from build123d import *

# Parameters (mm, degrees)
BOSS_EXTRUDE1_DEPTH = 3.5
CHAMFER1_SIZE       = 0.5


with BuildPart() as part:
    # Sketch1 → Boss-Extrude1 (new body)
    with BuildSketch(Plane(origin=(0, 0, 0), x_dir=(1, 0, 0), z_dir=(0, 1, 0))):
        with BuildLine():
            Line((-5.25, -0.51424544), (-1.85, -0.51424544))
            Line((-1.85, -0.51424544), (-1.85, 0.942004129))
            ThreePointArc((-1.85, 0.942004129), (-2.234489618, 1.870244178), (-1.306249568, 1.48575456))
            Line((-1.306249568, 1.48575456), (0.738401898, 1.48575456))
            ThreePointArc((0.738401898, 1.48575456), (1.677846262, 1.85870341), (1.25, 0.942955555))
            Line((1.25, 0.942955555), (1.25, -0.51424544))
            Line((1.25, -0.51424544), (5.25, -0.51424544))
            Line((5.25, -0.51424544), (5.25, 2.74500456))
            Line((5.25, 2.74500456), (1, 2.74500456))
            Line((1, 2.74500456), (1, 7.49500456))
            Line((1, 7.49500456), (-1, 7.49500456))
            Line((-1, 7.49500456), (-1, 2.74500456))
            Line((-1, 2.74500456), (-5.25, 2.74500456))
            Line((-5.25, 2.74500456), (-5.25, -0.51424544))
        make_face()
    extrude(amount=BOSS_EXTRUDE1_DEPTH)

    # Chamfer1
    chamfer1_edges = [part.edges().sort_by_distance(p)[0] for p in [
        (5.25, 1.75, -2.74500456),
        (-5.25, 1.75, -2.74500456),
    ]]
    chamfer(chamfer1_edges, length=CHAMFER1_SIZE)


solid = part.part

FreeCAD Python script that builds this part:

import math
import FreeCAD as App
import Part
import Sketcher


def edges_at(feature, points):
    """Names of the edges that pass closest to the given points."""
    edges = feature.Shape.Edges
    near = lambda p: min(range(len(edges)), key=lambda i: edges[i].distToShape(Part.Vertex(*p))[0])
    return sorted({f"Edge{near(p) + 1}" for p in points})

doc = App.newDocument("Part")
body = doc.addObject("PartDesign::Body", "Body")

# Sketch on XZ plane
sketch1 = body.newObject("Sketcher::SketchObject", "Sketch")
sketch1.AttachmentSupport = (doc.getObject("XZ_Plane"), [""])
sketch1.MapMode = "FlatFace"
sketch1.addGeometry(Part.LineSegment(App.Vector(-5.2, 0.5, 0), App.Vector(-1.9, 0.5, 0)), False)
sketch1.addGeometry(Part.LineSegment(App.Vector(-1.9, 0.5, 0), App.Vector(-1.9, -0.9, 0)), False)
sketch1.addGeometry(Part.ArcOfCircle(Part.Circle(App.Vector(-1.9, -1.5, 0), App.Vector(0, 0, 1), 0.5), math.radians(90), math.radians(360)), False)
sketch1.addGeometry(Part.LineSegment(App.Vector(-1.3, -1.5, 0), App.Vector(0.7, -1.5, 0)), False)
sketch1.addGeometry(Part.ArcOfCircle(Part.Circle(App.Vector(1.3, -1.5, 0), App.Vector(0, 0, 1), 0.5), math.radians(180), math.radians(453)), False)
sketch1.addGeometry(Part.LineSegment(App.Vector(1.2, -0.9, 0), App.Vector(1.2, 0.5, 0)), False)
sketch1.addGeometry(Part.LineSegment(App.Vector(1.2, 0.5, 0), App.Vector(5.2, 0.5, 0)), False)
sketch1.addGeometry(Part.LineSegment(App.Vector(5.2, 0.5, 0), App.Vector(5.2, -2.7, 0)), False)
sketch1.addGeometry(Part.LineSegment(App.Vector(5.2, -2.7, 0), App.Vector(1, -2.7, 0)), False)
sketch1.addGeometry(Part.LineSegment(App.Vector(1, -2.7, 0), App.Vector(1, -7.5, 0)), False)
sketch1.addGeometry(Part.LineSegment(App.Vector(1, -7.5, 0), App.Vector(-1, -7.5, 0)), False)
sketch1.addGeometry(Part.LineSegment(App.Vector(-1, -7.5, 0), App.Vector(-1, -2.7, 0)), False)
sketch1.addGeometry(Part.LineSegment(App.Vector(-1, -2.7, 0), App.Vector(-5.2, -2.7, 0)), False)
sketch1.addGeometry(Part.LineSegment(App.Vector(-5.2, -2.7, 0), App.Vector(-5.2, 0.5, 0)), False)
sketch1.addConstraint(Sketcher.Constraint("Coincident", 0, 2, 1, 1))
sketch1.addConstraint(Sketcher.Constraint("Coincident", 1, 2, 2, 1))
sketch1.addConstraint(Sketcher.Constraint("Coincident", 2, 2, 3, 1))
sketch1.addConstraint(Sketcher.Constraint("Coincident", 3, 2, 4, 1))
sketch1.addConstraint(Sketcher.Constraint("Coincident", 4, 2, 5, 1))
sketch1.addConstraint(Sketcher.Constraint("Coincident", 5, 2, 6, 1))
sketch1.addConstraint(Sketcher.Constraint("Coincident", 6, 2, 7, 1))
sketch1.addConstraint(Sketcher.Constraint("Coincident", 7, 2, 8, 1))
sketch1.addConstraint(Sketcher.Constraint("Coincident", 8, 2, 9, 1))
sketch1.addConstraint(Sketcher.Constraint("Coincident", 9, 2, 10, 1))
sketch1.addConstraint(Sketcher.Constraint("Coincident", 10, 2, 11, 1))
sketch1.addConstraint(Sketcher.Constraint("Coincident", 11, 2, 12, 1))
sketch1.addConstraint(Sketcher.Constraint("Coincident", 12, 2, 13, 1))
sketch1.addConstraint(Sketcher.Constraint("Coincident", 13, 2, 0, 1))
sketch1.addConstraint(Sketcher.Constraint("Horizontal", 0))
sketch1.addConstraint(Sketcher.Constraint("Vertical", 1))
sketch1.addConstraint(Sketcher.Constraint("Horizontal", 3))
sketch1.addConstraint(Sketcher.Constraint("Vertical", 5))
sketch1.addConstraint(Sketcher.Constraint("Horizontal", 6))
sketch1.addConstraint(Sketcher.Constraint("Vertical", 7))
sketch1.addConstraint(Sketcher.Constraint("Horizontal", 8))
sketch1.addConstraint(Sketcher.Constraint("Vertical", 9))
sketch1.addConstraint(Sketcher.Constraint("Horizontal", 10))
sketch1.addConstraint(Sketcher.Constraint("Vertical", 11))
sketch1.addConstraint(Sketcher.Constraint("Horizontal", 12))
sketch1.addConstraint(Sketcher.Constraint("Vertical", 13))
sketch1.addConstraint(Sketcher.Constraint("Equal", 2, 4))
sketch1.addConstraint(Sketcher.Constraint("Symmetric", 8, 2, 11, 2, -2))
sketch1.addConstraint(Sketcher.Constraint("Symmetric", 6, 2, 13, 2, -2))
sketch1.addConstraint(Sketcher.Constraint("Horizontal", 2, 3, 4, 3))
sketch1.addConstraint(Sketcher.Constraint("Horizontal", 4, 3, 2, 2))
sketch1.addConstraint(Sketcher.Constraint("Vertical", 2, 3, 0, 2))
sketch1.addConstraint(Sketcher.Constraint("DistanceX", 6, 1, 6, 2, 4.0))
sketch1.addConstraint(Sketcher.Constraint("DistanceX", 10, 2, 10, 1, 2.0))
sketch1.addConstraint(Sketcher.Constraint("DistanceX", 0, 1, 0, 2, 3.4))
sketch1.addConstraint(Sketcher.Constraint("DistanceY", 2, 3, 0, 2, 2.0))
sketch1.addConstraint(Sketcher.Constraint("DistanceX", 8, 2, 8, 1, 4.25))
sketch1.addConstraint(Sketcher.Constraint("DistanceY", 9, 2, 9, 1, 4.75))
sketch1.addConstraint(Sketcher.Constraint("Radius", 2, 0.54375))
sketch1.addConstraint(Sketcher.Constraint("DistanceY", 5, 1, 5, 2, 1.457201))
sketch1.addConstraint(Sketcher.Constraint("DistanceY", 11, 2, 1, 2, 1.803))
sketch1.addConstraint(Sketcher.Constraint("DistanceY", 2, 3, -1, 1, 1.485755))
pad1 = body.newObject("PartDesign::Pad", "Pad")
pad1.Profile = sketch1
pad1.Length = 3.5
pad1.Reversed = True
doc.recompute()

chamfer = body.newObject("PartDesign::Chamfer", "Chamfer")
chamfer.Base = (pad1, edges_at(pad1, [(5.25, 1.75, -2.745), (-5.25, 1.75, -2.745)]))
chamfer.Size = 0.5

doc.recompute()
